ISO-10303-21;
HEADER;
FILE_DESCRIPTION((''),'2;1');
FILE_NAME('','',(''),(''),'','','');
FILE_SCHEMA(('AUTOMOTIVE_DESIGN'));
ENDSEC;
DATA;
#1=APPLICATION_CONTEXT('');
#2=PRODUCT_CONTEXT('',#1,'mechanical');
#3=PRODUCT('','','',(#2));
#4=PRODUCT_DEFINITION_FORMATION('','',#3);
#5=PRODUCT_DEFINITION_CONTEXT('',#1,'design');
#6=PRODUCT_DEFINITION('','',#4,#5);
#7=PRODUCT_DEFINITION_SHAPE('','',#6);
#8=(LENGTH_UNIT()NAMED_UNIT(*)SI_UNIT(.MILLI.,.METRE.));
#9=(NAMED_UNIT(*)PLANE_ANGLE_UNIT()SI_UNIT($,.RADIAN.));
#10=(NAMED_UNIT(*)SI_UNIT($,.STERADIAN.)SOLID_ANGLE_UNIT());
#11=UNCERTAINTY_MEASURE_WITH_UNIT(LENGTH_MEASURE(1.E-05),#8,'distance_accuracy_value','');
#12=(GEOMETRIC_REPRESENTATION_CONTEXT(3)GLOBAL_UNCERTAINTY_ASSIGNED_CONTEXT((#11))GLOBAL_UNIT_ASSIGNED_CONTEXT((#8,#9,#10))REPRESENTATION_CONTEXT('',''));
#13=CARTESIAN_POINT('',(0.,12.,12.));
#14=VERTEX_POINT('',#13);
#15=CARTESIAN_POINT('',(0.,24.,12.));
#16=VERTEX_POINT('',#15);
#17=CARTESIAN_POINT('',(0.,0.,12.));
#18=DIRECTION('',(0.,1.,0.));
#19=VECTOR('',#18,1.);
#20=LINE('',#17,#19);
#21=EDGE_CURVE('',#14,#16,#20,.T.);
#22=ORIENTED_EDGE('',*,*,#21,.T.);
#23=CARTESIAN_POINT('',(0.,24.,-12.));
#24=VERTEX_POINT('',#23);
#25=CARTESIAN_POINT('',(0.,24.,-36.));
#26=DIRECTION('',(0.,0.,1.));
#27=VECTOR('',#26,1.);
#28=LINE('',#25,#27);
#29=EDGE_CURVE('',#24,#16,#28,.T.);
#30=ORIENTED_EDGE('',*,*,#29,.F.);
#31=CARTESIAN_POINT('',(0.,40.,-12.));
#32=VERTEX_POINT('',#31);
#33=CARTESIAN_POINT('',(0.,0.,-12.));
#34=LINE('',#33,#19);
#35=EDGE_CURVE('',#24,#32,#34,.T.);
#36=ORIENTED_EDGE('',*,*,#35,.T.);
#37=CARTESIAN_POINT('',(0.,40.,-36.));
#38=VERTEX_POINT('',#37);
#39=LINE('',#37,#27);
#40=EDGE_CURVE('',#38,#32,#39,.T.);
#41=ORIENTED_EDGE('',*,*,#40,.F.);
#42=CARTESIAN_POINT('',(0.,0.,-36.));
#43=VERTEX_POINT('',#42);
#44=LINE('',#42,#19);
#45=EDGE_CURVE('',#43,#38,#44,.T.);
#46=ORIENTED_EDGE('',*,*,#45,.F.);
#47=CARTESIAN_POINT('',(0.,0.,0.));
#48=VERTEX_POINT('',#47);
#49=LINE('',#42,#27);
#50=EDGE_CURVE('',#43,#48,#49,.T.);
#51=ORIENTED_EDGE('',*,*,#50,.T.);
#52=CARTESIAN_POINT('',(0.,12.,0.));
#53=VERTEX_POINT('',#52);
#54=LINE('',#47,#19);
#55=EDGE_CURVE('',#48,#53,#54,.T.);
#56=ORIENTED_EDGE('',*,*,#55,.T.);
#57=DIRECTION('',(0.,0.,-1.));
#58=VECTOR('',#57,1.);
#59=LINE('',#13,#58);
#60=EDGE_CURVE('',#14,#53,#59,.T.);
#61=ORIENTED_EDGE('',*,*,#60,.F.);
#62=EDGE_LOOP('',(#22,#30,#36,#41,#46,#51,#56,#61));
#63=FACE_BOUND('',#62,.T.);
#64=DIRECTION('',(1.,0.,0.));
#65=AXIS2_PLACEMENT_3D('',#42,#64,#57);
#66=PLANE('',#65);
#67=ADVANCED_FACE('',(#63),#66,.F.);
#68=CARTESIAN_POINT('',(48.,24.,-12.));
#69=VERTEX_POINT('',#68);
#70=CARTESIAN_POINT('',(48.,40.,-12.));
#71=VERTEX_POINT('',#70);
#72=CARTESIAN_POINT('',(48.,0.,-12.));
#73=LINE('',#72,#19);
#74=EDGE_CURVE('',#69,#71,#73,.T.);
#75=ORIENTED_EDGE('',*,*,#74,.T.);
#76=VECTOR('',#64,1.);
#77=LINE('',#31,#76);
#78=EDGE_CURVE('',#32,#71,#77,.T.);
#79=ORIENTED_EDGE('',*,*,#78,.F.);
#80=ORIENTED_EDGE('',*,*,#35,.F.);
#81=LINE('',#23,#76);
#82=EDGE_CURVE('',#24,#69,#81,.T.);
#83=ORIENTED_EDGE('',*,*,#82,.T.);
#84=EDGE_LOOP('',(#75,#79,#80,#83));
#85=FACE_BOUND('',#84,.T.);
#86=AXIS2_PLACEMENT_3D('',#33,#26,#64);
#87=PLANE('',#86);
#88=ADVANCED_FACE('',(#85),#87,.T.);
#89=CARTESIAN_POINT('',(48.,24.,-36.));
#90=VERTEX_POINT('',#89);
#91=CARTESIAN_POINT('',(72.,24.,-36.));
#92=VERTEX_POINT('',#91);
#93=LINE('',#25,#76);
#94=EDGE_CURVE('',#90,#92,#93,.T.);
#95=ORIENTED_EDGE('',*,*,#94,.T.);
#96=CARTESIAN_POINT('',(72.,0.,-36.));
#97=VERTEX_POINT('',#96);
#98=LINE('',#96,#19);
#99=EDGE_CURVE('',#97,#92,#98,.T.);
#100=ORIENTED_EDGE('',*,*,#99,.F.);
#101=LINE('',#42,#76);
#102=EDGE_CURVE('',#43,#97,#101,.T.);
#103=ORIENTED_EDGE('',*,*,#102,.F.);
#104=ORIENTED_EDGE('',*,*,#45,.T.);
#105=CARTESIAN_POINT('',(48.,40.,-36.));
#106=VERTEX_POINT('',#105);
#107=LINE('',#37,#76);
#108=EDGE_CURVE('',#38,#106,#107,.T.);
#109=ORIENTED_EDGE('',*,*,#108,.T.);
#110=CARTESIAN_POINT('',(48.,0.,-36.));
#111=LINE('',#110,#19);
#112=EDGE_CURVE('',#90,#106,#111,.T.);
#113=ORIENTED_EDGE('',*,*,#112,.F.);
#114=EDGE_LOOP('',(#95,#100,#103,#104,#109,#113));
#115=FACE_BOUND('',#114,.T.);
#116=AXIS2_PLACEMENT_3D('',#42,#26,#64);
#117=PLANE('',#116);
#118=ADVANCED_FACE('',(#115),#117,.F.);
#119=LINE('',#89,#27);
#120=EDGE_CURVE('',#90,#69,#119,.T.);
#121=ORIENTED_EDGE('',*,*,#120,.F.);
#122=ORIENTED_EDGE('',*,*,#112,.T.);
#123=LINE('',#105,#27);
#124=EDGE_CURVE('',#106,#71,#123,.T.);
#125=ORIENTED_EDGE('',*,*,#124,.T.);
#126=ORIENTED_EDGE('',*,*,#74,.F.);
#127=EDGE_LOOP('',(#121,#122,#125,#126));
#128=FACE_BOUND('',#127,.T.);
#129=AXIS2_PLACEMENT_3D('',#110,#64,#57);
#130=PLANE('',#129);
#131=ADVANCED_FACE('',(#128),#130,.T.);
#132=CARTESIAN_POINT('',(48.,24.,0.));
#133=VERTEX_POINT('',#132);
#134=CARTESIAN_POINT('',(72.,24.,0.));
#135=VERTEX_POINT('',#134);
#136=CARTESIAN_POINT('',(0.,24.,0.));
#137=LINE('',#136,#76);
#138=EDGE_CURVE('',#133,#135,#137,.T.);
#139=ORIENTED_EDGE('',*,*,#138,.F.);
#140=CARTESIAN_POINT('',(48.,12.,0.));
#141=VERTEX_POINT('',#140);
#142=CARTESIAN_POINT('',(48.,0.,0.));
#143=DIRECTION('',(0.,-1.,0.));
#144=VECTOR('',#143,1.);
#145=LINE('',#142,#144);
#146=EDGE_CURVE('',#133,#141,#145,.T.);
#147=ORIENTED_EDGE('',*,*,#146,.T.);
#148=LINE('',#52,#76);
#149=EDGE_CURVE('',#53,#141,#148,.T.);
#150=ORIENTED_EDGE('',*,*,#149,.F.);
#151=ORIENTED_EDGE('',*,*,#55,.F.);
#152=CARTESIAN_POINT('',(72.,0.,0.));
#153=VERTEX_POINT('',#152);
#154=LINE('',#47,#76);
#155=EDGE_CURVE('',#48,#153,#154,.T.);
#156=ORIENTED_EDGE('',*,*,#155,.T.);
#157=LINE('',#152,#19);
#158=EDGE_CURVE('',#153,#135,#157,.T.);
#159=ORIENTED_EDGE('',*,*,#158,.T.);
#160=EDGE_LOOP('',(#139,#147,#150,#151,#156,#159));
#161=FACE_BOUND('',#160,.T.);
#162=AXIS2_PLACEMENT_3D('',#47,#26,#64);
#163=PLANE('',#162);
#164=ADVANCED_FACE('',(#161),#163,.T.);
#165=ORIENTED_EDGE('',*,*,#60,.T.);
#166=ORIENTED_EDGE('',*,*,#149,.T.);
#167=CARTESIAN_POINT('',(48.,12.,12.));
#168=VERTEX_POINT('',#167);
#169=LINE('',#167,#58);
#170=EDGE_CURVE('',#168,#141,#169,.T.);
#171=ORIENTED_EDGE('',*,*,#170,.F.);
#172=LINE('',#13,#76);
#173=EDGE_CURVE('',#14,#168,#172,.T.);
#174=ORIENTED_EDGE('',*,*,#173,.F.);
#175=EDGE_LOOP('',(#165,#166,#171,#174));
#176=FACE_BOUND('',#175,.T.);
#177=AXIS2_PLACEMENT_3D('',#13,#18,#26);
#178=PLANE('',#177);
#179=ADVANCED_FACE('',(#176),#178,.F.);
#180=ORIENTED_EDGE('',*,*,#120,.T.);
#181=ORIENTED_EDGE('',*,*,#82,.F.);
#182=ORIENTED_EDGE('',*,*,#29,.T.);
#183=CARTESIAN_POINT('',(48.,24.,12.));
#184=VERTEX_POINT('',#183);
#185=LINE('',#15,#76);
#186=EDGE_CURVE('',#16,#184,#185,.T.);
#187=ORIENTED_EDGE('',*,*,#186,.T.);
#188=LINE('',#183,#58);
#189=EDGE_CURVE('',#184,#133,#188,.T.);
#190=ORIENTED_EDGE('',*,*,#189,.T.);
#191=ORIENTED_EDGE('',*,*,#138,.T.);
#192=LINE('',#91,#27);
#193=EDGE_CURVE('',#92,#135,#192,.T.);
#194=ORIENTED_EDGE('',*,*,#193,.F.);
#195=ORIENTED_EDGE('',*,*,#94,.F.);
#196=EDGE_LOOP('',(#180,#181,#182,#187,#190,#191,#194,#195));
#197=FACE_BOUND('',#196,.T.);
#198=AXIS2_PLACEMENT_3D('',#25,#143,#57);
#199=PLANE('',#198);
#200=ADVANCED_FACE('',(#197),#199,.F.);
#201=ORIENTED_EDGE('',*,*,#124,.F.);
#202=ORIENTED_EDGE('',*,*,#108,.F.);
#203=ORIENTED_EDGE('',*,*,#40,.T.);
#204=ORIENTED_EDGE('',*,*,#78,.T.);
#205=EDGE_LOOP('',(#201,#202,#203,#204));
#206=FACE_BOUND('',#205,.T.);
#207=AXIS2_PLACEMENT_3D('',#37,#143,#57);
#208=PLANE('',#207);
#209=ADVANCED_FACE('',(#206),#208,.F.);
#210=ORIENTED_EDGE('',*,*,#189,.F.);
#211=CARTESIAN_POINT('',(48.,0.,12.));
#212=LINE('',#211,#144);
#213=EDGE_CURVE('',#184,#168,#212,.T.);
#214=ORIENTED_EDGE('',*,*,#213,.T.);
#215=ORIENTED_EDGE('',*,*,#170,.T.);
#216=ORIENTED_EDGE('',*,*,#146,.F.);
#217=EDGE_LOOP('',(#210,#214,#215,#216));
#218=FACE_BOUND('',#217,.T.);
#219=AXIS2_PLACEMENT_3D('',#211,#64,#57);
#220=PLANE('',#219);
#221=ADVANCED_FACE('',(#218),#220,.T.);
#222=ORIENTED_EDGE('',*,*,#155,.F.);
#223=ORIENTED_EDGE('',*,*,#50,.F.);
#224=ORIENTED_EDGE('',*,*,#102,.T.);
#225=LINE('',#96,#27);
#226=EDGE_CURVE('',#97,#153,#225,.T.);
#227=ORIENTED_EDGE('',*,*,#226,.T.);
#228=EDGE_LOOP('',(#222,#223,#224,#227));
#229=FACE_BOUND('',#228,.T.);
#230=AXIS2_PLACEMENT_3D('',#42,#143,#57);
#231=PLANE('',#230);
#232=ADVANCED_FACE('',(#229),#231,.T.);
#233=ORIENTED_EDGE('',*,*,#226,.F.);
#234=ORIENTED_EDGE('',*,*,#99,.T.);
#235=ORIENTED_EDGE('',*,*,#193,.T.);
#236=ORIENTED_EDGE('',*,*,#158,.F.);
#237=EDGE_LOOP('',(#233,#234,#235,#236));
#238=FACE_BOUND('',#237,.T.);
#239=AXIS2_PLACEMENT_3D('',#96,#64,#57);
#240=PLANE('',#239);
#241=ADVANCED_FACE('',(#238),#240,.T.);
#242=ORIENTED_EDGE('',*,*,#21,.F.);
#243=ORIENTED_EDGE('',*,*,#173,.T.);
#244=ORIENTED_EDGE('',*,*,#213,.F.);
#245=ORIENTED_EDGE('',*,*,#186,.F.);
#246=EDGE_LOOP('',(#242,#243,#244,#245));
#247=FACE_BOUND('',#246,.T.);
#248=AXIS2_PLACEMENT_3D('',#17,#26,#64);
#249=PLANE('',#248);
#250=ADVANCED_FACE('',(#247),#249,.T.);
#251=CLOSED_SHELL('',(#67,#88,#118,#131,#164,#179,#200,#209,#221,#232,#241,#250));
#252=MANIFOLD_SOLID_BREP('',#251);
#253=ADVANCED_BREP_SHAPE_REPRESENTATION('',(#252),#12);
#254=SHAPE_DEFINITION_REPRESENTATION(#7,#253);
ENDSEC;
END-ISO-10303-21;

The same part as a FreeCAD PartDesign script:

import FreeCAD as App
import Part
import Sketcher

V = App.Vector
Q = App.Units.Quantity

doc = App.newDocument("Part")
params = doc.addObject("Spreadsheet::Sheet", "Params")
for row, (alias, value) in enumerate([
    ("sketch1_width", "72 mm"),
    ("sketch1_height", "24 mm"),
    ("pad1_length", "36 mm"),
    ("sketch2_width", "48 mm"),
    ("sketch2_height", "12 mm"),
    ("pad2_length", "12 mm"),
    ("sketch3_width", "48 mm"),
    ("sketch3_height", "16 mm"),
    ("pad3_length", "24 mm"),
], start=1):
    params.set(f"A{row}", alias)
    params.set(f"B{row}", "=" + value)
    params.setAlias(f"B{row}", alias)

body = doc.addObject("PartDesign::Body", "Body")

# Sketch on XY plane
sketch1 = doc.addObject("Sketcher::SketchObject", "Sketch")
body.addObject(sketch1)
sketch1.AttachmentSupport = (doc.XY_Plane, [""])
sketch1.MapMode = "FlatFace"
sketch1.addGeometry([
    Part.LineSegment(V(0, 24, 0), V(0, 0, 0)),
    Part.LineSegment(V(0, 0, 0), V(72, 0, 0)),
    Part.LineSegment(V(72, 0, 0), V(72, 24, 0)),
    Part.LineSegment(V(72, 24, 0), V(0, 24, 0)),
], False)
sketch1.addConstraint([
    Sketcher.Constraint("Coincident", 0, 2, 1, 1),
    Sketcher.Constraint("Coincident", 1, 2, 2, 1),
    Sketcher.Constraint("Coincident", 2, 2, 3, 1),
    Sketcher.Constraint("Coincident", 3, 2, 0, 1),
    Sketcher.Constraint("Vertical", 0),
    Sketcher.Constraint("Horizontal", 1),
    Sketcher.Constraint("Vertical", 2),
    Sketcher.Constraint("Horizontal", 3),
    Sketcher.Constraint("Coincident", 0, 2, -1, 1),
    Sketcher.Constraint("DistanceX", 1, 1, 1, 2, Q("72 mm")),
    Sketcher.Constraint("DistanceY", 0, 2, 0, 1, Q("24 mm")),
])
sketch1.setExpression("Constraints[9]", "Params.sketch1_width")
sketch1.setExpression("Constraints[10]", "Params.sketch1_height")
pad1 = doc.addObject("PartDesign::Pad", "Pad")
body.addObject(pad1)
pad1.Profile = sketch1
pad1.setExpression("Length", "Params.pad1_length")
pad1.Reversed = True

# Sketch on XY plane
sketch2 = doc.addObject("Sketcher::SketchObject", "Sketch001")
body.addObject(sketch2)
sketch2.AttachmentSupport = (doc.XY_Plane, [""])
sketch2.MapMode = "FlatFace"
sketch2.addGeometry([
    Part.LineSegment(V(0, 24, 0), V(0, 12, 0)),
    Part.LineSegment(V(0, 12, 0), V(48, 12, 0)),
    Part.LineSegment(V(48, 12, 0), V(48, 24, 0)),
    Part.LineSegment(V(48, 24, 0), V(0, 24, 0)),
], False)
sketch2.addConstraint([
    Sketcher.Constraint("Coincident", 0, 2, 1, 1),
    Sketcher.Constraint("Coincident", 1, 2, 2, 1),
    Sketcher.Constraint("Coincident", 2, 2, 3, 1),
    Sketcher.Constraint("Coincident", 3, 2, 0, 1),
    Sketcher.Constraint("Vertical", 0),
    Sketcher.Constraint("Horizontal", 1),
    Sketcher.Constraint("Vertical", 2),
    Sketcher.Constraint("Horizontal", 3),
    Sketcher.Constraint("PointOnObject", 0, 2, -2),
    Sketcher.Constraint("DistanceX", 1, 1, 1, 2, Q("48 mm")),
    Sketcher.Constraint("DistanceY", 0, 2, 0, 1, Q("12 mm")),
    Sketcher.Constraint("DistanceY", -1, 1, 0, 2, Q("12 mm")),
])
sketch2.setExpression("Constraints[9]", "Params.sketch2_width")
sketch2.setExpression("Constraints[10]", "Params.sketch2_height")
pad2 = doc.addObject("PartDesign::Pad", "Pad001")
body.addObject(pad2)
pad2.Profile = sketch2
pad2.setExpression("Length", "Params.pad2_length")

# Sketch on XY plane
sketch3 = doc.addObject("Sketcher::SketchObject", "Sketch002")
body.addObject(sketch3)
sketch3.AttachmentSupport = (doc.XY_Plane, [""])
sketch3.MapMode = "FlatFace"
sketch3.AttachmentOffset = App.Placement(V(0, 0, -12), App.Rotation())
sketch3.addGeometry([
    Part.LineSegment(V(0, 40, 0), V(0, 24, 0)),
    Part.LineSegment(V(0, 24, 0), V(48, 24, 0)),
    Part.LineSegment(V(48, 24, 0), V(48, 40, 0)),
    Part.LineSegment(V(48, 40, 0), V(0, 40, 0)),
], False)
sketch3.addConstraint([
    Sketcher.Constraint("Coincident", 0, 2, 1, 1),
    Sketcher.Constraint("Coincident", 1, 2, 2, 1),
    Sketcher.Constraint("Coincident", 2, 2, 3, 1),
    Sketcher.Constraint("Coincident", 3, 2, 0, 1),
    Sketcher.Constraint("Vertical", 0),
    Sketcher.Constraint("Horizontal", 1),
    Sketcher.Constraint("Vertical", 2),
    Sketcher.Constraint("Horizontal", 3),
    Sketcher.Constraint("PointOnObject", 0, 2, -2),
    Sketcher.Constraint("DistanceX", 1, 1, 1, 2, Q("48 mm")),
    Sketcher.Constraint("DistanceY", 0, 2, 0, 1, Q("16 mm")),
    Sketcher.Constraint("DistanceY", -1, 1, 0, 2, Q("24 mm")),
])
sketch3.setExpression("Constraints[9]", "Params.sketch3_width")
sketch3.setExpression("Constraints[10]", "Params.sketch3_height")
pad3 = doc.addObject("PartDesign::Pad", "Pad002")
body.addObject(pad3)
pad3.Profile = sketch3
pad3.setExpression("Length", "Params.pad3_length")
pad3.Reversed = True

doc.recompute()
